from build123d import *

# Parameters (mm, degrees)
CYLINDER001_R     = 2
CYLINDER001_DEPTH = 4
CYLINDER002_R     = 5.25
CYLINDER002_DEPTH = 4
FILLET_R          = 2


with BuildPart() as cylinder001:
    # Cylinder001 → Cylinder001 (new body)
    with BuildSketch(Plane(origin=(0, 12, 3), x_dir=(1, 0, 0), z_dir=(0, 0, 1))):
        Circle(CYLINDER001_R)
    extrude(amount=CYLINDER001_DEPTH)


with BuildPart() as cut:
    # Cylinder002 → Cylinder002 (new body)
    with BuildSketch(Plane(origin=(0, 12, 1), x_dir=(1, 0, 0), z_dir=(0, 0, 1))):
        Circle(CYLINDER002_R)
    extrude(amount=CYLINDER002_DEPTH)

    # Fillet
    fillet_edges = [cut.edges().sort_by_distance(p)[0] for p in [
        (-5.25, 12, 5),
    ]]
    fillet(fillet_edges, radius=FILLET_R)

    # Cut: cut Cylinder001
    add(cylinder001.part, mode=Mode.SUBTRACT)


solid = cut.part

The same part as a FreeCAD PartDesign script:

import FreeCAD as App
import Part
import Sketcher
from FreeCAD import Vector


def edges_at(feature, points):
    """Names of the edges that pass closest to the given points."""
    edges = feature.Shape.Edges
    near = lambda p: min(range(len(edges)), key=lambda i: edges[i].distToShape(Part.Vertex(*p))[0])
    return sorted({f"Edge{near(p) + 1}" for p in points})

doc = App.newDocument("Part")
body = doc.addObject("PartDesign::Body", "Body")

sketch1 = doc.addObject("Sketcher::SketchObject", "Sketch")
body.addObject(sketch1)
sketch1.AttachmentSupport = (doc.XY_Plane, [""])
sketch1.MapMode = "FlatFace"
sketch1.AttachmentOffset = App.Placement(Vector(0, 0, 3), App.Rotation())
sketch1.addGeometry(Part.Circle(Vector(0, 12, 0), Vector(0, 0, 1), 2), False)
sketch1.addConstraint([
    Sketcher.Constraint("PointOnObject", 0, 3, -2),
    Sketcher.Constraint("Diameter", 0, 4.0),
    Sketcher.Constraint("DistanceY", -1, 1, 0, 3, 12.0),
])
pad1 = doc.addObject("PartDesign::Pad", "Pad")
body.addObject(pad1)
pad1.Profile = sketch1
pad1.Length = 4
body2 = doc.addObject("PartDesign::Body", "Body001")

sketch2 = doc.addObject("Sketcher::SketchObject", "Sketch001")
body2.addObject(sketch2)
sketch2.AttachmentSupport = (doc.getObject("XY_Plane001"), [""])
sketch2.MapMode = "FlatFace"
sketch2.AttachmentOffset = App.Placement(Vector(0, 0, 1), App.Rotation())
sketch2.addGeometry(Part.Circle(Vector(0, 12, 0), Vector(0, 0, 1), 5), False)
sketch2.addConstraint([
    Sketcher.Constraint("PointOnObject", 0, 3, -2),
    Sketcher.Constraint("Diameter", 0, 10.5),
    Sketcher.Constraint("DistanceY", -1, 1, 0, 3, 12.0),
])
pad2 = doc.addObject("PartDesign::Pad", "Pad001")
body2.addObject(pad2)
pad2.Profile = sketch2
pad2.Length = 4
doc.recompute()

fillet = doc.addObject("PartDesign::Fillet", "Fillet")
body2.addObject(fillet)
fillet.Base = (pad2, edges_at(pad2, [(-5.25, 12, 5)]))
fillet.Radius = 2
doc.recompute()

boolean = doc.addObject("PartDesign::Boolean", "Boolean")
body2.addObject(boolean)
boolean.Type = "Cut"
boolean.addObjects([body])

doc.recompute()
